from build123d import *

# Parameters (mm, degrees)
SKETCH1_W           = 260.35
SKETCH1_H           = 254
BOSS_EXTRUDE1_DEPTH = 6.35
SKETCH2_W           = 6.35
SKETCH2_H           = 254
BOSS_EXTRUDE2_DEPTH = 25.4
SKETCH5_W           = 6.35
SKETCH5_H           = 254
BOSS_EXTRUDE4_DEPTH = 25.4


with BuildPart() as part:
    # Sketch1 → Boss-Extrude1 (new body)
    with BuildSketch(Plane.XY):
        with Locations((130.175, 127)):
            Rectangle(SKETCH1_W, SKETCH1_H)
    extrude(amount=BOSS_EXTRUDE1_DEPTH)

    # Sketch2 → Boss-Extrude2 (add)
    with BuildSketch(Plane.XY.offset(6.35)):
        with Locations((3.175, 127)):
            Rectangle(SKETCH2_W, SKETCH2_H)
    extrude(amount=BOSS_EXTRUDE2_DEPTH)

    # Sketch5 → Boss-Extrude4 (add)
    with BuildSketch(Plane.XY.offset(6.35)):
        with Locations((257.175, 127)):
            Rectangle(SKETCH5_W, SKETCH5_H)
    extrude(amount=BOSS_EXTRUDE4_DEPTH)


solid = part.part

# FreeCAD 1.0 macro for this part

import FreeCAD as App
import Part
import Sketcher
from FreeCAD import Vector
Q = App.Units.Quantity


def add_polygon(sketch, points):
    """Adds a closed chain of lines whose ends are joined by coincident constraints."""
    first, n = sketch.GeometryCount, len(points)
    for a, b in zip(points, points[1:] + points[:1]):
        sketch.addGeometry(Part.LineSegment(App.Vector(*a, 0), App.Vector(*b, 0)), False)
    for i in range(n):
        sketch.addConstraint(Sketcher.Constraint("Coincident", first + i, 2, first + (i + 1) % n, 1))

doc = App.newDocument("Part")
body = doc.addObject("PartDesign::Body", "Body")

sketch1 = body.newObject("Sketcher::SketchObject", "Sketch")
sketch1.AttachmentSupport = (doc.getObject("XY_Plane"), [""])
sketch1.MapMode = "FlatFace"
add_polygon(sketch1, [(0, 254), (0, 0), (260, 0), (260, 254)])
sketch1.addConstraint([
    Sketcher.Constraint("Vertical", 0),
    Sketcher.Constraint("Horizontal", 1),
    Sketcher.Constraint("Vertical", 2),
    Sketcher.Constraint("Horizontal", 3),
    Sketcher.Constraint("Coincident", 0, 2, -1, 1),
    Sketcher.Constraint("DistanceY", 0, 2, 0, 1, Q("10 in")),
    Sketcher.Constraint("DistanceX", 1, 1, 1, 2, Q("10.25 in")),
])
pad1 = body.newObject("PartDesign::Pad", "Pad")
pad1.Profile = sketch1
pad1.Length = Q("0.25 in")

sketch2 = body.newObject("Sketcher::SketchObject", "Sketch001")
sketch2.AttachmentSupport = (doc.getObject("XY_Plane"), [""])
sketch2.MapMode = "FlatFace"
sketch2.AttachmentOffset = App.Placement(Vector(0, 0, 0.25 * 25.4), App.Rotation())
add_polygon(sketch2, [(0, 254), (0, 0), (6, 0), (6, 254)])
sketch2.addConstraint([
    Sketcher.Constraint("Vertical", 0),
    Sketcher.Constraint("Horizontal", 1),
    Sketcher.Constraint("Vertical", 2),
    Sketcher.Constraint("Horizontal", 3),
    Sketcher.Constraint("Coincident", 0, 2, -1, 1),
    Sketcher.Constraint("DistanceY", 0, 2, 0, 1, Q("10 in")),
    Sketcher.Constraint("DistanceX", 1, 1, 1, 2, Q("0.25 in")),
])
pad2 = body.newObject("PartDesign::Pad", "Pad001")
pad2.Profile = sketch2
pad2.Length = Q("1 in")

sketch3 = body.newObject("Sketcher::SketchObject", "Sketch002")
sketch3.AttachmentSupport = (doc.getObject("XY_Plane"), [""])
sketch3.MapMode = "FlatFace"
sketch3.AttachmentOffset = App.Placement(Vector(0, 0, 0.25 * 25.4), App.Rotation())
add_polygon(sketch3, [(254, 254), (254, 0), (260, 0), (260, 254)])
sketch3.addConstraint([
    Sketcher.Constraint("Vertical", 0),
    Sketcher.Constraint("Horizontal", 1),
    Sketcher.Constraint("Vertical", 2),
    Sketcher.Constraint("Horizontal", 3),
    Sketcher.Constraint("PointOnObject", 0, 2, -1),
    Sketcher.Constraint("DistanceY", 0, 2, 0, 1, Q("10 in")),
    Sketcher.Constraint("DistanceX", -1, 1, 0, 2, Q("10 in")),
    Sketcher.Constraint("DistanceX", 1, 1, 1, 2, Q("0.25 in")),
])
pad3 = body.newObject("PartDesign::Pad", "Pad002")
pad3.Profile = sketch3
pad3.Length = Q("1 in")

doc.recompute()
